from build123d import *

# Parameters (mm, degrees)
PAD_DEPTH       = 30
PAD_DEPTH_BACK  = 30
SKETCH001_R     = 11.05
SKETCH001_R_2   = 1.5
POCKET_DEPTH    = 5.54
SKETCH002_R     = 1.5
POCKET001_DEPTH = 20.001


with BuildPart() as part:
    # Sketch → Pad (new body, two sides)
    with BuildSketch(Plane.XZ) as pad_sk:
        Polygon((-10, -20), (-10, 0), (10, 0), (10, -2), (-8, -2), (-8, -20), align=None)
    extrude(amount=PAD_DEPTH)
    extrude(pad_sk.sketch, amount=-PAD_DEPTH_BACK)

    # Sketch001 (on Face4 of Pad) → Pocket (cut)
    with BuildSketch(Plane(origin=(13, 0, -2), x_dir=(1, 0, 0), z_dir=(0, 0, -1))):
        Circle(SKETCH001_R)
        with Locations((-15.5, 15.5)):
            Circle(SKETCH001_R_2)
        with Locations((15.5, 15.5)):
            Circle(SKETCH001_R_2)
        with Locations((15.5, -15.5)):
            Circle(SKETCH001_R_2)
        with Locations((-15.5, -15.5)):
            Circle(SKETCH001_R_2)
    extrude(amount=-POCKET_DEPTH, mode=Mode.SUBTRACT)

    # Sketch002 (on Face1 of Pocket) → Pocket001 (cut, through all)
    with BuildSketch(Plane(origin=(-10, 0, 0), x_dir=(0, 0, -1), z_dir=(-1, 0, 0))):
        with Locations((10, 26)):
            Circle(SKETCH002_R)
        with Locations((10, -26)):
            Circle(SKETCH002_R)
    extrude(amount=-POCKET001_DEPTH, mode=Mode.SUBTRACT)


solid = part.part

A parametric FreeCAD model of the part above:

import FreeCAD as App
import Part
import Sketcher

V = App.Vector


def add_polygon(sketch, points):
    """Adds a closed chain of lines whose ends are joined by coincident constraints."""
    first, n = sketch.GeometryCount, len(points)
    for a, b in zip(points, points[1:] + points[:1]):
        sketch.addGeometry(Part.LineSegment(App.Vector(*a, 0), App.Vector(*b, 0)), False)
    for i in range(n):
        sketch.addConstraint(Sketcher.Constraint("Coincident", first + i, 2, first + (i + 1) % n, 1))

doc = App.newDocument("Part")
body = doc.addObject("PartDesign::Body", "Body")

# Sketch on XZ plane
sketch1 = doc.addObject("Sketcher::SketchObject", "Sketch")
body.addObject(sketch1)
sketch1.AttachmentSupport = (doc.XZ_Plane, [""])
sketch1.MapMode = "FlatFace"
add_polygon(sketch1, [(-10, 0), (-10, -20), (-8, -20), (-8, -2), (10, -2), (10, 0)])  # lines 0-5
sketch1.addConstraint(Sketcher.Constraint("Vertical", 0))
sketch1.addConstraint(Sketcher.Constraint("Horizontal", 1))
sketch1.addConstraint(Sketcher.Constraint("Vertical", 2))
sketch1.addConstraint(Sketcher.Constraint("Horizontal", 3))
sketch1.addConstraint(Sketcher.Constraint("Vertical", 4))
sketch1.addConstraint(Sketcher.Constraint("Horizontal", 5))
sketch1.addConstraint(Sketcher.Constraint("Symmetric", 4, 2, 5, 2, -1, 1))
sketch1.addConstraint(Sketcher.Constraint("Equal", 5, 0))
sketch1.addConstraint(Sketcher.Constraint("Equal", 3, 2))
sketch1.addConstraint(Sketcher.Constraint("DistanceX", 1, 1, 1, 2, 2.0))
sketch1.addConstraint(Sketcher.Constraint("DistanceX", 3, 1, 3, 2, 18.0))
pad1 = doc.addObject("PartDesign::Pad", "Pad")
body.addObject(pad1)
pad1.Profile = sketch1
pad1.Type = "TwoLengths"
pad1.Length = 30
pad1.Length2 = 30

# Sketch on XY plane
sketch2 = doc.addObject("Sketcher::SketchObject", "Sketch001")
body.addObject(sketch2)
sketch2.AttachmentSupport = (doc.XY_Plane, [""])
sketch2.MapMode = "FlatFace"
sketch2.AttachmentOffset = App.Placement(V(0, 0, -2), App.Rotation())
sketch2.addGeometry(Part.Circle(V(13, 0, 0), V(0, 0, 1), 11.1), False)
sketch2.addGeometry(Part.Circle(V(-2.5, -15.5, 0), V(0, 0, 1), 1.5), False)
sketch2.addGeometry(Part.Circle(V(28.5, -15.5, 0), V(0, 0, 1), 1.5), False)
sketch2.addGeometry(Part.Circle(V(28.5, 15.5, 0), V(0, 0, 1), 1.5), False)
sketch2.addGeometry(Part.Circle(V(-2.5, 15.5, 0), V(0, 0, 1), 1.5), False)
sketch2.addConstraint(Sketcher.Constraint("Equal", 1, 2))
sketch2.addConstraint(Sketcher.Constraint("Equal", 2, 3))
sketch2.addConstraint(Sketcher.Constraint("Equal", 3, 4))
sketch2.addConstraint(Sketcher.Constraint("Symmetric", 2, 3, 3, 3, -1))
sketch2.addConstraint(Sketcher.Constraint("Symmetric", 1, 3, 4, 3, -1))
sketch2.addConstraint(Sketcher.Constraint("PointOnObject", 0, 3, -1))
sketch2.addConstraint(Sketcher.Constraint("Horizontal", 1, 3, 2, 3))
sketch2.addConstraint(Sketcher.Constraint("Diameter", 1, 3.0))
sketch2.addConstraint(Sketcher.Constraint("Diameter", 0, 22.1))
sketch2.addConstraint(Sketcher.Constraint("DistanceX", -1, 1, 0, 3, 13.0))
sketch2.addConstraint(Sketcher.Constraint("DistanceX", 1, 3, 2, 3, 31.0))
sketch2.addConstraint(Sketcher.Constraint("DistanceY", 2, 3, 3, 3, 31.0))
sketch2.addConstraint(Sketcher.Constraint("DistanceX", 1, 3, -1, 1, 2.5))
pocket1 = doc.addObject("PartDesign::Pocket", "Pocket")
body.addObject(pocket1)
pocket1.Profile = sketch2
pocket1.Length = 5.54
pocket1.Reversed = True

# Sketch on YZ plane
sketch3 = doc.addObject("Sketcher::SketchObject", "Sketch002")
body.addObject(sketch3)
sketch3.AttachmentSupport = (doc.YZ_Plane, [""])
sketch3.MapMode = "FlatFace"
sketch3.AttachmentOffset = App.Placement(V(0, 0, -10), App.Rotation())
sketch3.addGeometry(Part.Circle(V(-26, -10, 0), V(0, 0, 1), 1.5), False)
sketch3.addGeometry(Part.Circle(V(26, -10, 0), V(0, 0, 1), 1.5), False)
sketch3.addConstraint(Sketcher.Constraint("Equal", 0, 1))
sketch3.addConstraint(Sketcher.Constraint("Symmetric", 0, 3, 1, 3, -2))
sketch3.addConstraint(Sketcher.Constraint("Diameter", 0, 3.0))
sketch3.addConstraint(Sketcher.Constraint("DistanceX", 0, 3, -1, 1, 26.0))
sketch3.addConstraint(Sketcher.Constraint("DistanceY", 0, 3, -1, 1, 10.0))
pocket2 = doc.addObject("PartDesign::Pocket", "Pocket001")
body.addObject(pocket2)
pocket2.Profile = sketch3
pocket2.Type = "ThroughAll"
pocket2.Reversed = True

doc.recompute()
